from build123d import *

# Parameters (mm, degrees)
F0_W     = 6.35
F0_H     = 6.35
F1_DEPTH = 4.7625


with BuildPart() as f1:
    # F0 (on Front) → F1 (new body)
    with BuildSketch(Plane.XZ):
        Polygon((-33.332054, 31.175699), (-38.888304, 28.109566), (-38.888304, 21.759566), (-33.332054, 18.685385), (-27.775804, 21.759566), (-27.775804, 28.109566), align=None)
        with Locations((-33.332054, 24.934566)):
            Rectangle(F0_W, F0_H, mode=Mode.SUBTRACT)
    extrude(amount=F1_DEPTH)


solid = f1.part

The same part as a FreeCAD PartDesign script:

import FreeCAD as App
import Part
import Sketcher

V = App.Vector
Q = App.Units.Quantity


def add_polygon(sketch, points):
    """Adds a closed chain of lines whose ends are joined by coincident constraints."""
    first, n = sketch.GeometryCount, len(points)
    for a, b in zip(points, points[1:] + points[:1]):
        sketch.addGeometry(Part.LineSegment(App.Vector(*a, 0), App.Vector(*b, 0)), False)
    for i in range(n):
        sketch.addConstraint(Sketcher.Constraint("Coincident", first + i, 2, first + (i + 1) % n, 1))

doc = App.newDocument("Part")
params = doc.addObject("Spreadsheet::Sheet", "Params")
for row, (alias, value) in enumerate([
    ("sketch1_width", "0.25 in"),
    ("sketch1_length", "0.25 in"),
    ("pad1_length", "0.1875 in"),
], start=1):
    params.set(f"A{row}", alias)
    params.set(f"B{row}", "=" + value)
    params.setAlias(f"B{row}", alias)

body = doc.addObject("PartDesign::Body", "Body")

sketch1 = body.newObject("Sketcher::SketchObject", "Sketch")
sketch1.AttachmentSupport = (doc.getObject("XZ_Plane"), [""])
sketch1.MapMode = "FlatFace"
add_polygon(sketch1, [(-33, 31), (-39, 28), (-39, 22), (-33, 19), (-28, 22), (-28, 28)])
add_polygon(sketch1, [(-30, 22), (-37, 22), (-37, 28), (-30, 28)])
sketch1.addConstraint(Sketcher.Constraint("Vertical", 1))
sketch1.addConstraint(Sketcher.Constraint("Vertical", 4))
sketch1.addConstraint(Sketcher.Constraint("Horizontal", 6))
sketch1.addConstraint(Sketcher.Constraint("Vertical", 7))
sketch1.addConstraint(Sketcher.Constraint("Horizontal", 8))
sketch1.addConstraint(Sketcher.Constraint("Vertical", 9))
sketch1.addConstraint(Sketcher.Constraint("Horizontal", 1, 2, 3, 2))
sketch1.addConstraint(Sketcher.Constraint("Horizontal", 0, 2, 4, 2))
sketch1.addConstraint(Sketcher.Constraint("Horizontal", 3, 2, 6, 2))
sketch1.addConstraint(Sketcher.Constraint("Horizontal", 4, 2, 7, 2))
sketch1.addConstraint(Sketcher.Constraint("Vertical", 2, 2, 5, 2))
sketch1.addConstraint(Sketcher.Constraint("Equal", 8, 1))
sketch1.addConstraint(Sketcher.Constraint("Equal", 2, 3))
sketch1.addConstraint(Sketcher.Constraint("DistanceX", 6, 2, 6, 1, Q("0.25 in")))
sketch1.addConstraint(Sketcher.Constraint("Distance", 2, Q("0.25 in")))
sketch1.addConstraint(Sketcher.Constraint("DistanceX", 1, 2, 2, 2, Q("0.21875 in")))
sketch1.addConstraint(Sketcher.Constraint("DistanceX", 1, 2, 6, 2, Q("0.09375 in")))
sketch1.addConstraint(Sketcher.Constraint("DistanceY", -1, 1, 5, 2, 31.175699))
sketch1.addConstraint(Sketcher.Constraint("Distance", 0, 6.346108))
sketch1.addConstraint(Sketcher.Constraint("DistanceX", 0, 2, -1, 1, 38.888304))
sketch1.setExpression("Constraints[23]", "Params.sketch1_width")
sketch1.setExpression("Constraints[24]", "Params.sketch1_length")
pad1 = body.newObject("PartDesign::Pad", "Pad")
pad1.Profile = sketch1
pad1.setExpression("Length", "Params.pad1_length")

doc.recompute()
